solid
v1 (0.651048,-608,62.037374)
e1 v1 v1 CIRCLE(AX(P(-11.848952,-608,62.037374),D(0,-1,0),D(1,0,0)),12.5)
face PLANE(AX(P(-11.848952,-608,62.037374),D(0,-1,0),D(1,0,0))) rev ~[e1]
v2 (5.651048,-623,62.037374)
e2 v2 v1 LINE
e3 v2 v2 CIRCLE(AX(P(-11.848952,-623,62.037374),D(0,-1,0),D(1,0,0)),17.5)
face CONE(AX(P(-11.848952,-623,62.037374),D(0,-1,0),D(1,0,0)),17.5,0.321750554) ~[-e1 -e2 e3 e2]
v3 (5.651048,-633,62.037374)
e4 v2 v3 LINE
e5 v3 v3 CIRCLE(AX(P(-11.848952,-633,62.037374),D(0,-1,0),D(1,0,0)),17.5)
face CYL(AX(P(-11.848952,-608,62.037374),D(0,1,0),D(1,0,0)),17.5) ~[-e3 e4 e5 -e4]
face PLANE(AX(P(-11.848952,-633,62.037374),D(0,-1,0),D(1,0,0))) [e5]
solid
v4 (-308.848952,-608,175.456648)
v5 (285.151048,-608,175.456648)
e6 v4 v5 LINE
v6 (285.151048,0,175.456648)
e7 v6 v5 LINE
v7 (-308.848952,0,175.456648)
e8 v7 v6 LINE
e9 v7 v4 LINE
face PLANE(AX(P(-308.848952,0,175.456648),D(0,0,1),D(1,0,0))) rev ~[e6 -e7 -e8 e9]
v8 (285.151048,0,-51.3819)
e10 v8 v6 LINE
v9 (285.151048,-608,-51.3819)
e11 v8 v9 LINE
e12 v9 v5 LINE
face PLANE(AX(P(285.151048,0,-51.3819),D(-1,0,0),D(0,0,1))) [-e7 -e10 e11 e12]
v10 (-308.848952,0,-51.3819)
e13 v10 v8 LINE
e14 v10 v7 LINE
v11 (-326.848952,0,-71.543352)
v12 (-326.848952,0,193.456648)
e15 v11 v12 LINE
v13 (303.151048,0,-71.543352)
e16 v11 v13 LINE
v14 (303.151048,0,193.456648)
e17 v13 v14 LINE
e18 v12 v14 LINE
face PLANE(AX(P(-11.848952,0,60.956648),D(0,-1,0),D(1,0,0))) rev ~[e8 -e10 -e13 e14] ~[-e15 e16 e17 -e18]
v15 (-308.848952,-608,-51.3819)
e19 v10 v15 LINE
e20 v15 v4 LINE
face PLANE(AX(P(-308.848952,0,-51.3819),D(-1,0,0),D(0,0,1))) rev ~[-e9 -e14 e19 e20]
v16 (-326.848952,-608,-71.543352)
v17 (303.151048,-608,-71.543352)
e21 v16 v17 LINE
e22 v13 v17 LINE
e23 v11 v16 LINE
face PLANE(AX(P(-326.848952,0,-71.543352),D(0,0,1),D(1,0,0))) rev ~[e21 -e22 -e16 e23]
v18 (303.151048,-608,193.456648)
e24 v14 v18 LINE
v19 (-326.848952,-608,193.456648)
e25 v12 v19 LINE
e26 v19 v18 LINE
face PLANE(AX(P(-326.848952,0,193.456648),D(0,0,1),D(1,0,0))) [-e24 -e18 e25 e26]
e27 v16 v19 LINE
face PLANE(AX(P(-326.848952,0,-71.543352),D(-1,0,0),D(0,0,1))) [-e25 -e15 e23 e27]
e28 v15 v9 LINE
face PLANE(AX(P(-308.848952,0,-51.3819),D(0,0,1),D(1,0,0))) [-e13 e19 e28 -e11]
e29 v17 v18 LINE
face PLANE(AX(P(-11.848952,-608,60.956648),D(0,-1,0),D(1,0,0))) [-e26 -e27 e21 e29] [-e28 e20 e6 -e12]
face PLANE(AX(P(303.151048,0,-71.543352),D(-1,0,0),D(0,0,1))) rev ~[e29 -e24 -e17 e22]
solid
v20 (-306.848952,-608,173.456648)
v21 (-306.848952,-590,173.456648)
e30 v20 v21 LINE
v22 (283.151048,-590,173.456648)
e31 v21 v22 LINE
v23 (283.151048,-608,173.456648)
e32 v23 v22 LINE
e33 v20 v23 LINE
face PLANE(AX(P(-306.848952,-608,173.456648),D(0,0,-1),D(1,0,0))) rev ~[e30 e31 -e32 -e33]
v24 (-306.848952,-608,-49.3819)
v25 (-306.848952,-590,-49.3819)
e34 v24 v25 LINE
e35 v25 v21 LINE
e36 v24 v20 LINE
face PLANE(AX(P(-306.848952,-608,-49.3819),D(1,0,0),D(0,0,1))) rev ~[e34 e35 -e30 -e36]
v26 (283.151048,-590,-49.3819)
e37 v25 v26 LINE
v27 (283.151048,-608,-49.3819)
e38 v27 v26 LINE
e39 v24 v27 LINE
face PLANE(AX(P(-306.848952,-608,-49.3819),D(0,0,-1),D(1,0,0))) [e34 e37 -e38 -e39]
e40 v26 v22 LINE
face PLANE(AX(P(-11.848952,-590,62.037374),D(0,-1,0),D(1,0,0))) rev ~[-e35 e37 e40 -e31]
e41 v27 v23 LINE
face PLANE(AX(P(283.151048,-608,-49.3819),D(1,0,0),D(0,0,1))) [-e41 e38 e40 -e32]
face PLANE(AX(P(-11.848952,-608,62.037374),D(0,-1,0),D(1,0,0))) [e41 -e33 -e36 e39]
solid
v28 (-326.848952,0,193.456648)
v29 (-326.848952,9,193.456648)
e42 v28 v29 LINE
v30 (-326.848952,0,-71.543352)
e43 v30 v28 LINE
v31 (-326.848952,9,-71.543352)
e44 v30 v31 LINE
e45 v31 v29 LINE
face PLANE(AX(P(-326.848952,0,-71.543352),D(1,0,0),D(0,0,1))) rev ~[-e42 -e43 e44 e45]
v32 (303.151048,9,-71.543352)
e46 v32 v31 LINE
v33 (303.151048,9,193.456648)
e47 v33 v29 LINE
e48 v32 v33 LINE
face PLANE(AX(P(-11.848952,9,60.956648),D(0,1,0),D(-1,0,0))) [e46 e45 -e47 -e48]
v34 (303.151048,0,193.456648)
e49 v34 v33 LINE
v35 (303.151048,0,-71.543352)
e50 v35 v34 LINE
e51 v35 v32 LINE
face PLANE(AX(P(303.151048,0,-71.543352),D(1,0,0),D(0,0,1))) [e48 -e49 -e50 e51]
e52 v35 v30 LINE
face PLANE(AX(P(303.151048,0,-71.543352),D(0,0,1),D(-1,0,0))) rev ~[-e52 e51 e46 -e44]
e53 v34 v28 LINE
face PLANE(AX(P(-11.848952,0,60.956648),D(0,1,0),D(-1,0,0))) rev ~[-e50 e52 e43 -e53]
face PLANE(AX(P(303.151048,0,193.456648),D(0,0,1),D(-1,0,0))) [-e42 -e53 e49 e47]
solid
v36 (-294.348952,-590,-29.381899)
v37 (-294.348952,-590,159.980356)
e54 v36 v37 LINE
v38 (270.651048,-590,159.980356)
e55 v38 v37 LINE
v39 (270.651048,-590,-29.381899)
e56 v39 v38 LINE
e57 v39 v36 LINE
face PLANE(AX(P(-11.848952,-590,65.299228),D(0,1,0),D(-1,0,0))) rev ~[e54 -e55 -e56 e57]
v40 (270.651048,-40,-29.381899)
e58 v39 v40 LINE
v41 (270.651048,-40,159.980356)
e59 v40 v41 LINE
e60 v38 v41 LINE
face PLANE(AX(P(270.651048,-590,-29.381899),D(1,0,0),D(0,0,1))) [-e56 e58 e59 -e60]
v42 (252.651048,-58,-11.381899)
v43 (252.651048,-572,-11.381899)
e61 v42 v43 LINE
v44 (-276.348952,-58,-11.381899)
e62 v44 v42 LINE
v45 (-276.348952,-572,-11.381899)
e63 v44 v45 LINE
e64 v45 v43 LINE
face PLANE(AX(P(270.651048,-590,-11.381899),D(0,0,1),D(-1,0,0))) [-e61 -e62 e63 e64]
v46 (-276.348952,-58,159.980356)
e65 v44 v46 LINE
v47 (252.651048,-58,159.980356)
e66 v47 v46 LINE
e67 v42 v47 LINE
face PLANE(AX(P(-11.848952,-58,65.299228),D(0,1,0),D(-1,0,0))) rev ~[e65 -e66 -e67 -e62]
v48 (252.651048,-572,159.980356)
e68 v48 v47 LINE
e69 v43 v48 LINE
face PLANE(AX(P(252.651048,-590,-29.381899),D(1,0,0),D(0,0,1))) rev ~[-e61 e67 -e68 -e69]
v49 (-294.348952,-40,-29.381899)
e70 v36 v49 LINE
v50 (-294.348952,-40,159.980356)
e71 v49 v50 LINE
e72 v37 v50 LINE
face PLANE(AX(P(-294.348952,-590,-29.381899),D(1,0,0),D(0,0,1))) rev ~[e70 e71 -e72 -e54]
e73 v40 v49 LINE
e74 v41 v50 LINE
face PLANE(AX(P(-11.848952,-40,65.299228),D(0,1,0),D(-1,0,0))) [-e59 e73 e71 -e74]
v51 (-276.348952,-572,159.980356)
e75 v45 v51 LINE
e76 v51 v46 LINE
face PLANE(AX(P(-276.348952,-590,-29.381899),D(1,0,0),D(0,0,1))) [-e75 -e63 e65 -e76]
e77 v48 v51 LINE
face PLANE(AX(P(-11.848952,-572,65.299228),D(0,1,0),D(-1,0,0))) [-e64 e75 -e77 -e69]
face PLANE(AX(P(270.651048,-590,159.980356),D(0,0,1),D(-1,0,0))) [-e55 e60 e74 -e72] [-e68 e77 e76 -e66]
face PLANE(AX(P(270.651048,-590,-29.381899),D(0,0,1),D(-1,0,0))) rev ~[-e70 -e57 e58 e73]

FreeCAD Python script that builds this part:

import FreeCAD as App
import Part
import Sketcher
from FreeCAD import Vector


def edges_at(feature, points):
    """Names of the edges that pass closest to the given points."""
    edges = feature.Shape.Edges
    near = lambda p: min(range(len(edges)), key=lambda i: edges[i].distToShape(Part.Vertex(*p))[0])
    return sorted({f"Edge{near(p) + 1}" for p in points})


def faces_at(feature, points):
    """Names of the faces that lie closest to the given points."""
    faces = feature.Shape.Faces
    near = lambda p: min(range(len(faces)), key=lambda i: faces[i].distToShape(Part.Vertex(*p))[0])
    return sorted({f"Face{near(p) + 1}" for p in points})

doc = App.newDocument("Part")
body = doc.addObject("PartDesign::Body", "Body")

sketch1 = doc.addObject("Sketcher::SketchObject", "Sketch")
body.addObject(sketch1)
sketch1.AttachmentSupport = (doc.XZ_Plane, [""])
sketch1.MapMode = "FlatFace"
sketch1.addGeometry([
    Part.LineSegment(Vector(-327, 193, 0), Vector(-327, -72, 0)),
    Part.LineSegment(Vector(-327, -72, 0), Vector(303, -72, 0)),
    Part.LineSegment(Vector(303, -72, 0), Vector(303, 193, 0)),
    Part.LineSegment(Vector(303, 193, 0), Vector(-327, 193, 0)),
    Part.LineSegment(Vector(285, -51, 0), Vector(-309, -51, 0)),
    Part.LineSegment(Vector(-309, -51, 0), Vector(-309, 175, 0)),
    Part.LineSegment(Vector(-309, 175, 0), Vector(285, 175, 0)),
    Part.LineSegment(Vector(285, 175, 0), Vector(285, -51, 0)),
], False)
sketch1.addConstraint([
    Sketcher.Constraint("Coincident", 0, 2, 1, 1),
    Sketcher.Constraint("Coincident", 1, 2, 2, 1),
    Sketcher.Constraint("Coincident", 2, 2, 3, 1),
    Sketcher.Constraint("Coincident", 3, 2, 0, 1),
    Sketcher.Constraint("Coincident", 4, 2, 5, 1),
    Sketcher.Constraint("Coincident", 5, 2, 6, 1),
    Sketcher.Constraint("Coincident", 6, 2, 7, 1),
    Sketcher.Constraint("Coincident", 7, 2, 4, 1),
    Sketcher.Constraint("Vertical", 0),
    Sketcher.Constraint("Horizontal", 1),
    Sketcher.Constraint("Vertical", 2),
    Sketcher.Constraint("Horizontal", 3),
    Sketcher.Constraint("Horizontal", 4),
    Sketcher.Constraint("Vertical", 5),
    Sketcher.Constraint("Horizontal", 6),
    Sketcher.Constraint("Vertical", 7),
    Sketcher.Constraint("DistanceX", 1, 1, 1, 2, 630.0),
    Sketcher.Constraint("DistanceX", 4, 2, 4, 1, 594.0),
    Sketcher.Constraint("DistanceY", 0, 2, 0, 1, 265.0),
    Sketcher.Constraint("DistanceX", 0, 2, 4, 2, 18.0),
    Sketcher.Constraint("DistanceY", 5, 2, 3, 2, 18.0),
    Sketcher.Constraint("DistanceY", 4, 2, -1, 1, 51.3819),
    Sketcher.Constraint("DistanceY", 5, 1, 5, 2, 226.838547),
    Sketcher.Constraint("DistanceX", 0, 2, -1, 1, 326.848952),
])
pad1 = doc.addObject("PartDesign::Pad", "Pad")
body.addObject(pad1)
pad1.Profile = sketch1
pad1.Length = 608
body2 = doc.addObject("PartDesign::Body", "Body001")

sketch2 = doc.addObject("Sketcher::SketchObject", "Sketch001")
body2.addObject(sketch2)
sketch2.AttachmentSupport = (doc.getObject("XZ_Plane001"), [""])
sketch2.MapMode = "FlatFace"
sketch2.addGeometry([
    Part.LineSegment(Vector(303, 193, 0), Vector(303, -72, 0)),
    Part.LineSegment(Vector(303, -72, 0), Vector(-327, -72, 0)),
    Part.LineSegment(Vector(-327, -72, 0), Vector(-327, 193, 0)),
    Part.LineSegment(Vector(-327, 193, 0), Vector(303, 193, 0)),
], False)
sketch2.addConstraint([
    Sketcher.Constraint("Coincident", 0, 2, 1, 1),
    Sketcher.Constraint("Coincident", 1, 2, 2, 1),
    Sketcher.Constraint("Coincident", 2, 2, 3, 1),
    Sketcher.Constraint("Coincident", 3, 2, 0, 1),
    Sketcher.Constraint("Vertical", 0),
    Sketcher.Constraint("Horizontal", 1),
    Sketcher.Constraint("Vertical", 2),
    Sketcher.Constraint("Horizontal", 3),
    Sketcher.Constraint("DistanceX", 1, 2, 1, 1, 630.0),
    Sketcher.Constraint("DistanceY", 0, 2, 0, 1, 265.0),
    Sketcher.Constraint("DistanceX", -1, 1, 0, 2, 303.151048),
    Sketcher.Constraint("DistanceY", 0, 2, -1, 1, 71.543352),
])
pad2 = doc.addObject("PartDesign::Pad", "Pad001")
body2.addObject(pad2)
pad2.Profile = sketch2
pad2.Length = 9
pad2.Reversed = True
body3 = doc.addObject("PartDesign::Body", "Body002")

sketch3 = doc.addObject("Sketcher::SketchObject", "Sketch002")
body3.addObject(sketch3)
sketch3.AttachmentSupport = (doc.getObject("XZ_Plane002"), [""])
sketch3.MapMode = "FlatFace"
sketch3.AttachmentOffset = App.Placement(Vector(0, 0, 608), App.Rotation())
sketch3.addGeometry([
    Part.LineSegment(Vector(-307, 173, 0), Vector(-307, -49, 0)),
    Part.LineSegment(Vector(-307, -49, 0), Vector(283, -49, 0)),
    Part.LineSegment(Vector(283, -49, 0), Vector(283, 173, 0)),
    Part.LineSegment(Vector(283, 173, 0), Vector(-307, 173, 0)),
], False)
sketch3.addConstraint([
    Sketcher.Constraint("Coincident", 0, 2, 1, 1),
    Sketcher.Constraint("Coincident", 1, 2, 2, 1),
    Sketcher.Constraint("Coincident", 2, 2, 3, 1),
    Sketcher.Constraint("Coincident", 3, 2, 0, 1),
    Sketcher.Constraint("Vertical", 0),
    Sketcher.Constraint("Horizontal", 1),
    Sketcher.Constraint("Vertical", 2),
    Sketcher.Constraint("Horizontal", 3),
    Sketcher.Constraint("DistanceX", 1, 1, 1, 2, 590.0),
    Sketcher.Constraint("DistanceY", 0, 2, -1, 1, 49.3819),
    Sketcher.Constraint("DistanceY", 0, 2, 0, 1, 222.838547),
    Sketcher.Constraint("DistanceX", 0, 2, -1, 1, 306.848952),
])
pad3 = doc.addObject("PartDesign::Pad", "Pad002")
body3.addObject(pad3)
pad3.Profile = sketch3
pad3.Length = 18
pad3.Reversed = True
body4 = doc.addObject("PartDesign::Body", "Body003")

sketch4 = doc.addObject("Sketcher::SketchObject", "Sketch003")
body4.addObject(sketch4)
sketch4.AttachmentSupport = (doc.getObject("XZ_Plane003"), [""])
sketch4.MapMode = "FlatFace"
sketch4.AttachmentOffset = App.Placement(Vector(0, 0, 590), App.Rotation())
sketch4.addGeometry([
    Part.LineSegment(Vector(271, 160, 0), Vector(271, -29, 0)),
    Part.LineSegment(Vector(271, -29, 0), Vector(-294, -29, 0)),
    Part.LineSegment(Vector(-294, -29, 0), Vector(-294, 160, 0)),
    Part.LineSegment(Vector(-294, 160, 0), Vector(271, 160, 0)),
], False)
sketch4.addConstraint([
    Sketcher.Constraint("Coincident", 0, 2, 1, 1),
    Sketcher.Constraint("Coincident", 1, 2, 2, 1),
    Sketcher.Constraint("Coincident", 2, 2, 3, 1),
    Sketcher.Constraint("Coincident", 3, 2, 0, 1),
    Sketcher.Constraint("Vertical", 0),
    Sketcher.Constraint("Horizontal", 1),
    Sketcher.Constraint("Vertical", 2),
    Sketcher.Constraint("Horizontal", 3),
    Sketcher.Constraint("DistanceX", 1, 2, 1, 1, 565.0),
    Sketcher.Constraint("DistanceY", 0, 2, -1, 1, 29.381899),
    Sketcher.Constraint("DistanceY", 0, 2, 0, 1, 189.362255),
    Sketcher.Constraint("DistanceX", -1, 1, 0, 2, 270.651048),
])
pad4 = doc.addObject("PartDesign::Pad", "Pad003")
body4.addObject(pad4)
pad4.Profile = sketch4
pad4.Length = 550
pad4.Reversed = True
doc.recompute()

thickness = doc.addObject("PartDesign::Thickness", "Thickness")
body4.addObject(thickness)
thickness.Base = (pad4, faces_at(pad4, [(-11.849, -315, 159.98)]))
thickness.Value = 18
thickness.Reversed = True
thickness.Join = "Arc"
body5 = doc.addObject("PartDesign::Body", "Body004")

sketch5 = doc.addObject("Sketcher::SketchObject", "Sketch004")
body5.addObject(sketch5)
sketch5.AttachmentSupport = (doc.getObject("XZ_Plane004"), [""])
sketch5.MapMode = "FlatFace"
sketch5.AttachmentOffset = App.Placement(Vector(0, 0, 608), App.Rotation())
sketch5.addGeometry(Part.Circle(Vector(-12, 62, 0), Vector(0, 0, 1), 18), False)
sketch5.addConstraint([
    Sketcher.Constraint("Diameter", 0, 35.0),
    Sketcher.Constraint("DistanceX", 0, 3, -1, 1, 11.848952),
    Sketcher.Constraint("DistanceY", -1, 1, 0, 3, 62.037374),
])
pad5 = doc.addObject("PartDesign::Pad", "Pad004")
body5.addObject(pad5)
pad5.Profile = sketch5
pad5.Length = 25
doc.recompute()

chamfer = doc.addObject("PartDesign::Chamfer", "Chamfer")
body5.addObject(chamfer)
chamfer.Base = (pad5, edges_at(pad5, [(-29.349, -608, 62.037)]))
chamfer.ChamferType = "Two distances"
chamfer.Size = 15
chamfer.Size2 = 5

doc.recompute()
